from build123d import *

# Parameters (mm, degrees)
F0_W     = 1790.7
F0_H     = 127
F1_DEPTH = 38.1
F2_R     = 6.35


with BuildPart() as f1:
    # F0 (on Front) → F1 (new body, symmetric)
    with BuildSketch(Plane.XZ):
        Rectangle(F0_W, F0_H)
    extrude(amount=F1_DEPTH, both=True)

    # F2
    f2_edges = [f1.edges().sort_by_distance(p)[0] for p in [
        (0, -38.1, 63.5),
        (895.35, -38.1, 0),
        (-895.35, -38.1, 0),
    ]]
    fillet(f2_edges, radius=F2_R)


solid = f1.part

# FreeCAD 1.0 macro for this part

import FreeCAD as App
import Part
import Sketcher
Q = App.Units.Quantity


def edges_at(feature, points):
    """Names of the edges that pass closest to the given points."""
    edges = feature.Shape.Edges
    near = lambda p: min(range(len(edges)), key=lambda i: edges[i].distToShape(Part.Vertex(*p))[0])
    return sorted({f"Edge{near(p) + 1}" for p in points})

doc = App.newDocument("Part")
body = doc.addObject("PartDesign::Body", "Body")

sketch1 = doc.addObject("Sketcher::SketchObject", "Sketch")
body.addObject(sketch1)
sketch1.AttachmentSupport = (doc.XZ_Plane, [""])
sketch1.MapMode = "FlatFace"
sketch1.addGeometry([
    Part.LineSegment(App.Vector(-895, 64, 0), App.Vector(-895, -64, 0)),
    Part.LineSegment(App.Vector(-895, -64, 0), App.Vector(895, -64, 0)),
    Part.LineSegment(App.Vector(895, -64, 0), App.Vector(895, 64, 0)),
    Part.LineSegment(App.Vector(895, 64, 0), App.Vector(-895, 64, 0)),
], False)
sketch1.addConstraint([
    Sketcher.Constraint("Coincident", 0, 2, 1, 1),
    Sketcher.Constraint("Coincident", 1, 2, 2, 1),
    Sketcher.Constraint("Coincident", 2, 2, 3, 1),
    Sketcher.Constraint("Coincident", 3, 2, 0, 1),
    Sketcher.Constraint("Vertical", 0),
    Sketcher.Constraint("Horizontal", 1),
    Sketcher.Constraint("Vertical", 2),
    Sketcher.Constraint("Horizontal", 3),
    Sketcher.Constraint("Symmetric", 0, 2, 2, 2, -1, 1),
    Sketcher.Constraint("DistanceY", 0, 2, 0, 1, Q("5 in")),
    Sketcher.Constraint("DistanceX", 1, 1, 1, 2, Q("70.5 in")),
])
pad1 = doc.addObject("PartDesign::Pad", "Pad")
body.addObject(pad1)
pad1.Profile = sketch1
pad1.Length = Q("3 in")
pad1.Midplane = True
doc.recompute()

fillet = doc.addObject("PartDesign::Fillet", "Fillet")
body.addObject(fillet)
fillet.Base = (pad1, edges_at(pad1, [(0, -38.1, 63.5), (895.35, -38.1, 0), (-895.35, -38.1, 0)]))
fillet.Radius = Q("0.25 in")

doc.recompute()
